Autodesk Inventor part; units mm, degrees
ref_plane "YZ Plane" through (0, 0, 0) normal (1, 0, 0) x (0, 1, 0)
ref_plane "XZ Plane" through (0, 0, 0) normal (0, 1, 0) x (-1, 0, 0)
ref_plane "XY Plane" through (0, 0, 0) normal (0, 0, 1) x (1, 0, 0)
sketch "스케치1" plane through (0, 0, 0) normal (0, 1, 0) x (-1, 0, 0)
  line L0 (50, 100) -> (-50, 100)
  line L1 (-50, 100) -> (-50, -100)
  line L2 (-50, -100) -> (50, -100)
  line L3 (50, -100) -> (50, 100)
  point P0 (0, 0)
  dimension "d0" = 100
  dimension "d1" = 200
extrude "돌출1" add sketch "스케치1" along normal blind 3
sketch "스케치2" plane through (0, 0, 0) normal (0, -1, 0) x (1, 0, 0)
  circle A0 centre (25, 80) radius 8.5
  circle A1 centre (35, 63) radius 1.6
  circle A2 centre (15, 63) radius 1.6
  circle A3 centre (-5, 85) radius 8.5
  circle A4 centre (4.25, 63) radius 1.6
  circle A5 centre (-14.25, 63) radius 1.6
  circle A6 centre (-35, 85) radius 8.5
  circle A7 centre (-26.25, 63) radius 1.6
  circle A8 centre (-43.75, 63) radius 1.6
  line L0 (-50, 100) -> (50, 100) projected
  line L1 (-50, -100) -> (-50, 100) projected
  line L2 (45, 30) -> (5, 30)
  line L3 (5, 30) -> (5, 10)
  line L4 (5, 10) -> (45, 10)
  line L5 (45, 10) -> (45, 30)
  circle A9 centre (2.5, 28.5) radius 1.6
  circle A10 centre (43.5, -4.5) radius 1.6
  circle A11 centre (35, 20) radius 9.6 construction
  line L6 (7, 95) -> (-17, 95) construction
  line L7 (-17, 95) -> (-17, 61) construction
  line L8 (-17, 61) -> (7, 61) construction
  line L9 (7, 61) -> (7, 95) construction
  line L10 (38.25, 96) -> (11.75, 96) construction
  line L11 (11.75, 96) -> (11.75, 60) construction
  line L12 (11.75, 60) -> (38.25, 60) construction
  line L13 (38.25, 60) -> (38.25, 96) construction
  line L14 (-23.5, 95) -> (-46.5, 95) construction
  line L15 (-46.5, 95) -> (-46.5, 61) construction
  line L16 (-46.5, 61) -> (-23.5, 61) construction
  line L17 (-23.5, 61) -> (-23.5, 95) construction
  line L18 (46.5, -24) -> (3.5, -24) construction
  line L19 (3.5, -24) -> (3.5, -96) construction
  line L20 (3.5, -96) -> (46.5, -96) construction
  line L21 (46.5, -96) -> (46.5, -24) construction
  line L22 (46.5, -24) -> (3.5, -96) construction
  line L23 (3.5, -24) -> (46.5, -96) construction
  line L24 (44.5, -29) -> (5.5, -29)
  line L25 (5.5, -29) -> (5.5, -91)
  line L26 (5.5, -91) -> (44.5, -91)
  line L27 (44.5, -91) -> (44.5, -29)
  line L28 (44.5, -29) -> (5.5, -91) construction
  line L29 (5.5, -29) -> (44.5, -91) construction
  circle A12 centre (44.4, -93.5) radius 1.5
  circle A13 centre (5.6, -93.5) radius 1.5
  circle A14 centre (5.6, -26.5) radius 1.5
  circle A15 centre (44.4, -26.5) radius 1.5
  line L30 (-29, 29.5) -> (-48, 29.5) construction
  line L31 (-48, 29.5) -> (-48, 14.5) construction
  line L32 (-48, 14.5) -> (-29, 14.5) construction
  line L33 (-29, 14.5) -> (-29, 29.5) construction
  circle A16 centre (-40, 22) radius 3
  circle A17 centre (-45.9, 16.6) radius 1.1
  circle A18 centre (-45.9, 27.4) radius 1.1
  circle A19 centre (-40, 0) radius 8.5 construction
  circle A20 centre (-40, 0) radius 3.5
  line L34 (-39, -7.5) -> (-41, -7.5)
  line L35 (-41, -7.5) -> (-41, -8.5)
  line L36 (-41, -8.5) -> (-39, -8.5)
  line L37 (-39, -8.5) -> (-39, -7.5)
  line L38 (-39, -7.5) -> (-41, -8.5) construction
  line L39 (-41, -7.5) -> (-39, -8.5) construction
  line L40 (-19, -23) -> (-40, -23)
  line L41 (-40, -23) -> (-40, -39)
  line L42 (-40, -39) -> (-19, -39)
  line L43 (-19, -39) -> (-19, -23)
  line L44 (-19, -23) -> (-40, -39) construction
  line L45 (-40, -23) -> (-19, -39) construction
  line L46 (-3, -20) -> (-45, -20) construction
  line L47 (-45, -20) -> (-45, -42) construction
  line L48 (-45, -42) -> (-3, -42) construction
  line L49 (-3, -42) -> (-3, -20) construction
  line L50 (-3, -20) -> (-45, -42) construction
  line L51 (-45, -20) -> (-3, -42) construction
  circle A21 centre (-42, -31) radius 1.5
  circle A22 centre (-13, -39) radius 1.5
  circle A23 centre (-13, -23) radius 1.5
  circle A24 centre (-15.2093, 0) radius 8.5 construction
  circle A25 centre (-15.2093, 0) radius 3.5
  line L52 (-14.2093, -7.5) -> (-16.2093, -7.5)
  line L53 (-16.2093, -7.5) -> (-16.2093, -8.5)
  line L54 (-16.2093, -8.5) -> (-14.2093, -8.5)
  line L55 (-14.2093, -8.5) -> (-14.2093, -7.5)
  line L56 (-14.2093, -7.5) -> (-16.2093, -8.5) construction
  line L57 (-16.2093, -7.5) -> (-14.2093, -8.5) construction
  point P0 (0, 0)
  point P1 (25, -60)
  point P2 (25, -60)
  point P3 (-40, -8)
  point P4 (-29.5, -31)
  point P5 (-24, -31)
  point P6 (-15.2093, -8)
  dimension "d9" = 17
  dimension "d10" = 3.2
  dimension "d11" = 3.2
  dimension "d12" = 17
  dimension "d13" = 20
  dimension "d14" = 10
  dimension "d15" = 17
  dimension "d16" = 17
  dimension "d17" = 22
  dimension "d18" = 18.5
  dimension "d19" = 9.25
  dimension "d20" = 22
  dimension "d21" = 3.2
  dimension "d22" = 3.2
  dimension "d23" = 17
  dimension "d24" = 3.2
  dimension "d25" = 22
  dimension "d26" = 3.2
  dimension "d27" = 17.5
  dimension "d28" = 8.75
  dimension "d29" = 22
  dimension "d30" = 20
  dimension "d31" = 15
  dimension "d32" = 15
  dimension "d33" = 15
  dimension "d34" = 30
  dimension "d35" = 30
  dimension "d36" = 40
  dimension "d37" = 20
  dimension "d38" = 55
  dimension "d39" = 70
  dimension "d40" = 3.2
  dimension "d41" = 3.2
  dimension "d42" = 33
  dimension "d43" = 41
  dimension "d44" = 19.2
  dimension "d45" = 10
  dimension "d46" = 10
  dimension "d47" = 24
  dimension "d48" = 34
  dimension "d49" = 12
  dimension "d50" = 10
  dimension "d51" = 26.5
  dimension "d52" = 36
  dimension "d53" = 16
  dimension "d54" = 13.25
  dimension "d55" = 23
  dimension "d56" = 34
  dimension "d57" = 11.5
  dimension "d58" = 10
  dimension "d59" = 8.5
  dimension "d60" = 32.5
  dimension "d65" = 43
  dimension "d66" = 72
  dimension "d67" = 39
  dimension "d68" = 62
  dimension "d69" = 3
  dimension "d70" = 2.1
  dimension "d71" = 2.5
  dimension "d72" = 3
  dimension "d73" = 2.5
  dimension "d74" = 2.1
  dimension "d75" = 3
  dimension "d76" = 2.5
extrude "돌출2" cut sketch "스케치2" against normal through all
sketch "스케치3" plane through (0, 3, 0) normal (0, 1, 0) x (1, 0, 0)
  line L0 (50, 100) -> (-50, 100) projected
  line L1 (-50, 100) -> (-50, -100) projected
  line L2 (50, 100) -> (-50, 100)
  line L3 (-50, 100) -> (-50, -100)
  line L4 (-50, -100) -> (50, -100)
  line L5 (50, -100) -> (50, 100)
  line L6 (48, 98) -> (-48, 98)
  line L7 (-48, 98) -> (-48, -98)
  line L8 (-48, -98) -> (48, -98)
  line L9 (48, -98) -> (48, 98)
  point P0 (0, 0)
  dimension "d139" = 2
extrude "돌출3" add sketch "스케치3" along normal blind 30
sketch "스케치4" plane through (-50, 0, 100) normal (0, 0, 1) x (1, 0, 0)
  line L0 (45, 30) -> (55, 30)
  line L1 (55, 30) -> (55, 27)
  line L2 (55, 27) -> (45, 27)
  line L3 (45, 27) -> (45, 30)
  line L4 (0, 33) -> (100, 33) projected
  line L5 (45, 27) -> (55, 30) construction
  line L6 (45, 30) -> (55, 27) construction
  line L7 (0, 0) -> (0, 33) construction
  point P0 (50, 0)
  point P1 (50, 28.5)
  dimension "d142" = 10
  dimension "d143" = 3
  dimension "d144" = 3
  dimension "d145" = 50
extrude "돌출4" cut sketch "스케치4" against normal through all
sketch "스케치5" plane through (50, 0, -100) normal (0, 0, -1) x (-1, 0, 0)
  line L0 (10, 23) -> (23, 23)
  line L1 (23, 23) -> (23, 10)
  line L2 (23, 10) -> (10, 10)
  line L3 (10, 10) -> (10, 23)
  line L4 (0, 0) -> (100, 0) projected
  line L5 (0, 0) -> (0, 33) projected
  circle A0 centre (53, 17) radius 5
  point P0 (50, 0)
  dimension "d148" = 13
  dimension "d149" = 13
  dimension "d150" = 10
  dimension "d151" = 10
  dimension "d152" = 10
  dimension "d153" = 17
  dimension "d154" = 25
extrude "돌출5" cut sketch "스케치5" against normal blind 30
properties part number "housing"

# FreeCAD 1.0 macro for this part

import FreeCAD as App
import Part
import Sketcher

doc = App.newDocument("Part")
params = doc.addObject("Spreadsheet::Sheet", "Params")
for row, (alias, value) in enumerate([
    ("sketch1_width", "100 mm"),
    ("sketch1_height", "200 mm"),
    ("pad1_length", "3 mm"),
    ("sketch2_diameter", "17 mm"),
    ("sketch2_diameter2", "3 mm"),
    ("sketch2_diameter3", "6 mm"),
    ("sketch2_diameter4", "3.2 mm"),
    ("sketch2_width", "40 mm"),
    ("sketch3_width", "100 mm"),
    ("sketch3_height", "200 mm"),
    ("pad2_length", "30 mm"),
    ("sketch4_width", "10 mm"),
    ("sketch4_height", "3 mm"),
    ("sketch5_diameter", "10 mm"),
    ("sketch5_width", "13 mm"),
    ("pocket3_length", "30 mm"),
], start=1):
    params.set(f"A{row}", alias)
    params.set(f"B{row}", "=" + value)
    params.setAlias(f"B{row}", alias)

body = doc.addObject("PartDesign::Body", "Body")

# Sketch on XZ plane
sketch1 = body.newObject("Sketcher::SketchObject", "Sketch")
sketch1.AttachmentSupport = (doc.getObject("XZ_Plane"), [""])
sketch1.MapMode = "FlatFace"
sketch1.addGeometry([
    Part.LineSegment(App.Vector(-50, -100, 0), App.Vector(-50, 100, 0)),
    Part.LineSegment(App.Vector(-50, 100, 0), App.Vector(50, 100, 0)),
    Part.LineSegment(App.Vector(50, 100, 0), App.Vector(50, -100, 0)),
    Part.LineSegment(App.Vector(50, -100, 0), App.Vector(-50, -100, 0)),
], False)
sketch1.addConstraint([
    Sketcher.Constraint("Coincident", 0, 2, 1, 1),
    Sketcher.Constraint("Coincident", 1, 2, 2, 1),
    Sketcher.Constraint("Coincident", 2, 2, 3, 1),
    Sketcher.Constraint("Coincident", 3, 2, 0, 1),
    Sketcher.Constraint("Vertical", 0),
    Sketcher.Constraint("Horizontal", 1),
    Sketcher.Constraint("Vertical", 2),
    Sketcher.Constraint("Horizontal", 3),
    Sketcher.Constraint("Symmetric", 0, 2, 2, 2, -1, 1),
    Sketcher.Constraint("DistanceX", 1, 1, 1, 2, 100.0),
    Sketcher.Constraint("DistanceY", 0, 1, 0, 2, 200.0),
])
sketch1.setExpression("Constraints[9]", "Params.sketch1_width")
sketch1.setExpression("Constraints[10]", "Params.sketch1_height")
pad1 = body.newObject("PartDesign::Pad", "Pad")
pad1.Profile = sketch1
pad1.setExpression("Length", "Params.pad1_length")
pad1.Reversed = True

# Sketch on XZ plane
sketch2 = body.newObject("Sketcher::SketchObject", "Sketch001")
sketch2.AttachmentSupport = (doc.getObject("XZ_Plane"), [""])
sketch2.MapMode = "FlatFace"
sketch2.addGeometry([
    Part.Circle(App.Vector(25, 80, 0), App.Vector(0, 0, 1), 8.5),  # 0
    Part.Circle(App.Vector(35, 63, 0), App.Vector(0, 0, 1), 1.6),  # 1
    Part.Circle(App.Vector(15, 63, 0), App.Vector(0, 0, 1), 1.6),  # 2
    Part.Circle(App.Vector(-5, 85, 0), App.Vector(0, 0, 1), 8.5),  # 3
    Part.Circle(App.Vector(4.2, 63, 0), App.Vector(0, 0, 1), 1.6),  # 4
    Part.Circle(App.Vector(-14.2, 63, 0), App.Vector(0, 0, 1), 1.6),  # 5
    Part.Circle(App.Vector(-35, 85, 0), App.Vector(0, 0, 1), 8.5),  # 6
    Part.Circle(App.Vector(-26.2, 63, 0), App.Vector(0, 0, 1), 1.6),  # 7
    Part.Circle(App.Vector(-43.8, 63, 0), App.Vector(0, 0, 1), 1.6),  # 8
    Part.LineSegment(App.Vector(45, 10, 0), App.Vector(45, 30, 0)),  # 9
    Part.LineSegment(App.Vector(45, 30, 0), App.Vector(5, 30, 0)),  # 10
    Part.LineSegment(App.Vector(5, 30, 0), App.Vector(5, 10, 0)),  # 11
    Part.LineSegment(App.Vector(5, 10, 0), App.Vector(45, 10, 0)),  # 12
    Part.Circle(App.Vector(2.5, 28.5, 0), App.Vector(0, 0, 1), 1.6),  # 13
    Part.Circle(App.Vector(43.5, -4.5, 0), App.Vector(0, 0, 1), 1.6),  # 14
    Part.LineSegment(App.Vector(44.5, -91, 0), App.Vector(44.5, -29, 0)),  # 15
    Part.LineSegment(App.Vector(44.5, -29, 0), App.Vector(5.5, -29, 0)),  # 16
    Part.LineSegment(App.Vector(5.5, -29, 0), App.Vector(5.5, -91, 0)),  # 17
    Part.LineSegment(App.Vector(5.5, -91, 0), App.Vector(44.5, -91, 0)),  # 18
    Part.Circle(App.Vector(44.4, -93.5, 0), App.Vector(0, 0, 1), 1.5),  # 19
    Part.Circle(App.Vector(5.6, -93.5, 0), App.Vector(0, 0, 1), 1.5),  # 20
    Part.Circle(App.Vector(5.6, -26.5, 0), App.Vector(0, 0, 1), 1.5),  # 21
    Part.Circle(App.Vector(44.4, -26.5, 0), App.Vector(0, 0, 1), 1.5),  # 22
    Part.Circle(App.Vector(-40, 22, 0), App.Vector(0, 0, 1), 3),  # 23
    Part.Circle(App.Vector(-45.9, 16.6, 0), App.Vector(0, 0, 1), 1.1),  # 24
    Part.Circle(App.Vector(-45.9, 27.4, 0), App.Vector(0, 0, 1), 1.1),  # 25
    Part.Circle(App.Vector(-40, 0, 0), App.Vector(0, 0, 1), 3.5),  # 26
    Part.LineSegment(App.Vector(-39, -8.5, 0), App.Vector(-39, -7.5, 0)),  # 27
    Part.LineSegment(App.Vector(-39, -7.5, 0), App.Vector(-41, -7.5, 0)),  # 28
    Part.LineSegment(App.Vector(-41, -7.5, 0), App.Vector(-41, -8.5, 0)),  # 29
    Part.LineSegment(App.Vector(-41, -8.5, 0), App.Vector(-39, -8.5, 0)),  # 30
    Part.LineSegment(App.Vector(-19, -39, 0), App.Vector(-19, -23, 0)),  # 31
    Part.LineSegment(App.Vector(-19, -23, 0), App.Vector(-40, -23, 0)),  # 32
    Part.LineSegment(App.Vector(-40, -23, 0), App.Vector(-40, -39, 0)),  # 33
    Part.LineSegment(App.Vector(-40, -39, 0), App.Vector(-19, -39, 0)),  # 34
    Part.Circle(App.Vector(-42, -31, 0), App.Vector(0, 0, 1), 1.5),  # 35
    Part.Circle(App.Vector(-13, -39, 0), App.Vector(0, 0, 1), 1.5),  # 36
    Part.Circle(App.Vector(-13, -23, 0), App.Vector(0, 0, 1), 1.5),  # 37
    Part.Circle(App.Vector(-15.2, 0, 0), App.Vector(0, 0, 1), 3.5),  # 38
    Part.LineSegment(App.Vector(-14.2, -8.5, 0), App.Vector(-14.2, -7.5, 0)),  # 39
    Part.LineSegment(App.Vector(-14.2, -7.5, 0), App.Vector(-16.2, -7.5, 0)),  # 40
    Part.LineSegment(App.Vector(-16.2, -7.5, 0), App.Vector(-16.2, -8.5, 0)),  # 41
    Part.LineSegment(App.Vector(-16.2, -8.5, 0), App.Vector(-14.2, -8.5, 0)),  # 42
], False)
sketch2.addConstraint([
    Sketcher.Constraint("Coincident", 9, 2, 10, 1),
    Sketcher.Constraint("Coincident", 10, 2, 11, 1),
    Sketcher.Constraint("Coincident", 11, 2, 12, 1),
    Sketcher.Constraint("Coincident", 12, 2, 9, 1),
    Sketcher.Constraint("Coincident", 15, 2, 16, 1),
    Sketcher.Constraint("Coincident", 16, 2, 17, 1),
    Sketcher.Constraint("Coincident", 17, 2, 18, 1),
    Sketcher.Constraint("Coincident", 18, 2, 15, 1),
    Sketcher.Constraint("Coincident", 27, 2, 28, 1),
    Sketcher.Constraint("Coincident", 28, 2, 29, 1),
    Sketcher.Constraint("Coincident", 29, 2, 30, 1),
    Sketcher.Constraint("Coincident", 30, 2, 27, 1),
    Sketcher.Constraint("Coincident", 31, 2, 32, 1),
    Sketcher.Constraint("Coincident", 32, 2, 33, 1),
    Sketcher.Constraint("Coincident", 33, 2, 34, 1),
    Sketcher.Constraint("Coincident", 34, 2, 31, 1),
    Sketcher.Constraint("Coincident", 39, 2, 40, 1),
    Sketcher.Constraint("Coincident", 40, 2, 41, 1),
    Sketcher.Constraint("Coincident", 41, 2, 42, 1),
    Sketcher.Constraint("Coincident", 42, 2, 39, 1),
    Sketcher.Constraint("Vertical", 9),
    Sketcher.Constraint("Horizontal", 10),
    Sketcher.Constraint("Vertical", 11),
    Sketcher.Constraint("Horizontal", 12),
    Sketcher.Constraint("Vertical", 15),
    Sketcher.Constraint("Horizontal", 16),
    Sketcher.Constraint("Vertical", 17),
    Sketcher.Constraint("Horizontal", 18),
    Sketcher.Constraint("Vertical", 27),
    Sketcher.Constraint("Horizontal", 28),
    Sketcher.Constraint("Vertical", 29),
    Sketcher.Constraint("Horizontal", 30),
    Sketcher.Constraint("Vertical", 31),
    Sketcher.Constraint("Horizontal", 32),
    Sketcher.Constraint("Vertical", 33),
    Sketcher.Constraint("Horizontal", 34),
    Sketcher.Constraint("Vertical", 39),
    Sketcher.Constraint("Horizontal", 40),
    Sketcher.Constraint("Vertical", 41),
    Sketcher.Constraint("Horizontal", 42),
    Sketcher.Constraint("Equal", 1, 2),
    Sketcher.Constraint("Equal", 0, 3),
    Sketcher.Constraint("Equal", 2, 4),
    Sketcher.Constraint("Equal", 4, 5),
    Sketcher.Constraint("Equal", 3, 6),
    Sketcher.Constraint("Equal", 5, 7),
    Sketcher.Constraint("Equal", 7, 8),
    Sketcher.Constraint("Equal", 8, 13),
    Sketcher.Constraint("Equal", 13, 14),
    Sketcher.Constraint("Equal", 19, 20),
    Sketcher.Constraint("Equal", 20, 21),
    Sketcher.Constraint("Equal", 21, 22),
    Sketcher.Constraint("Equal", 24, 25),
    Sketcher.Constraint("Equal", 22, 35),
    Sketcher.Constraint("Equal", 35, 36),
    Sketcher.Constraint("Equal", 36, 37),
    Sketcher.Constraint("Equal", 26, 38),
    Sketcher.Constraint("PointOnObject", 26, 3, -1),
    Sketcher.Constraint("PointOnObject", 38, 3, -1),
    Sketcher.Constraint("Horizontal", 1, 3, 2, 3),
    Sketcher.Constraint("Horizontal", 2, 3, 4, 3),
    Sketcher.Constraint("Horizontal", 4, 3, 5, 3),
    Sketcher.Constraint("Horizontal", 3, 3, 6, 3),
    Sketcher.Constraint("Horizontal", 5, 3, 7, 3),
    Sketcher.Constraint("Horizontal", 7, 3, 8, 3),
    Sketcher.Constraint("Horizontal", 19, 3, 20, 3),
    Sketcher.Constraint("Horizontal", 21, 3, 22, 3),
    Sketcher.Constraint("Horizontal", 37, 3, 31, 2),
    Sketcher.Constraint("Horizontal", 36, 3, 33, 2),
    Sketcher.Constraint("Horizontal", 28, 2, 39, 2),
    Sketcher.Constraint("Horizontal", 30, 2, 41, 2),
    Sketcher.Constraint("Vertical", 20, 3, 21, 3),
    Sketcher.Constraint("Vertical", 19, 3, 22, 3),
    Sketcher.Constraint("Vertical", 24, 3, 25, 3),
    Sketcher.Constraint("Vertical", 23, 3, 26, 3),
    Sketcher.Constraint("Vertical", 36, 3, 37, 3),
    Sketcher.Constraint("Vertical", 26, 3, 32, 2),
    Sketcher.Constraint("Equal", 30, 40),
    Sketcher.Constraint("Diameter", 0, 17.0),
    Sketcher.Constraint("Diameter", 19, 3.0),
    Sketcher.Constraint("Diameter", 23, 6.0),
    Sketcher.Constraint("Diameter", 1, 3.2),
    Sketcher.Constraint("DistanceX", 10, 2, 10, 1, 40.0),
    Sketcher.Constraint("DistanceX", 16, 2, 16, 1, 39.0),
    Sketcher.Constraint("DistanceY", 9, 1, 9, 2, 20.0),
    Sketcher.Constraint("DistanceY", 15, 1, 15, 2, 62.0),
    Sketcher.Constraint("DistanceY", 31, 1, 31, 2, 16.0),
    Sketcher.Constraint("Diameter", 26, 7.0),
    Sketcher.Constraint("DistanceX", -1, 1, 2, 3, 15.0),
    Sketcher.Constraint("DistanceX", 23, 3, -1, 1, 40.0),
    Sketcher.Constraint("DistanceY", -1, 1, 23, 3, 22.0),
    Sketcher.Constraint("DistanceY", 36, 3, -1, 1, 39.0),
    Sketcher.Constraint("DistanceY", -1, 1, 9, 2, 30.0),
    Sketcher.Constraint("DistanceX", 27, 2, -1, 1, 39.0),
    Sketcher.Constraint("DistanceX", 28, 2, -1, 1, 41.0),
    Sketcher.Constraint("DistanceX", 0, 3, 1, 3, 10.0),
    Sketcher.Constraint("DistanceY", 1, 3, 0, 3, 17.0),
    Sketcher.Constraint("DistanceX", 2, 3, 0, 3, 10.0),
    Sketcher.Constraint("DistanceX", 3, 3, 2, 3, 20.0),
    Sketcher.Constraint("DistanceY", 2, 3, 3, 3, 22.0),
    Sketcher.Constraint("DistanceX", 6, 3, 3, 3, 30.0),
    Sketcher.Constraint("DistanceX", 7, 3, 5, 3, 12.0),
    Sketcher.Constraint("DistanceX", 13, 3, 14, 3, 41.0),
    Sketcher.Constraint("DistanceY", 14, 3, 13, 3, 33.0),
    Sketcher.Constraint("DistanceY", 21, 3, 14, 3, 22.0),
    Sketcher.Constraint("DistanceY", 23, 3, 8, 3, 41.0),
    Sketcher.Constraint("DistanceX", 1, 3, 9, 2, 10.0),
    Sketcher.Constraint("DistanceY", 15, 2, 12, 2, 39.0),
    Sketcher.Constraint("DistanceX", 35, 3, 27, 2, 3.0),
    Sketcher.Constraint("DistanceX", 35, 3, 31, 2, 23.0),
    Sketcher.Constraint("Diameter", 24, 2.2),
    Sketcher.Constraint("DistanceX", -1, 1, 13, 3, 2.5),
    Sketcher.Constraint("DistanceY", 21, 3, -1, 1, 26.5),
    Sketcher.Constraint("DistanceY", 29, 2, -1, 1, 8.5),
    Sketcher.Constraint("DistanceX", 5, 3, 4, 3, 18.5),
    Sketcher.Constraint("DistanceX", 8, 3, 7, 3, 17.5),
    Sketcher.Constraint("DistanceX", 37, 3, 16, 2, 18.5),
    Sketcher.Constraint("DistanceY", 20, 3, 17, 2, 2.5),
    Sketcher.Constraint("DistanceY", 27, 1, 27, 2, 1.0),
    Sketcher.Constraint("DistanceX", 3, 3, 4, 3, 9.25),
    Sketcher.Constraint("DistanceY", 35, 3, -1, 1, 31.0),
    Sketcher.Constraint("DistanceX", 36, 3, -1, 1, 13.0),
    Sketcher.Constraint("DistanceX", 38, 3, 39, 2, 1.0),
    Sketcher.Constraint("DistanceX", -1, 1, 19, 3, 44.4),
    Sketcher.Constraint("DistanceX", -1, 1, 20, 3, 5.6),
    Sketcher.Constraint("DistanceX", 24, 3, -1, 1, 45.9),
    Sketcher.Constraint("DistanceY", -1, 1, 24, 3, 16.6),
    Sketcher.Constraint("DistanceY", -1, 1, 25, 3, 27.4),
    Sketcher.Constraint("DistanceX", 38, 3, -1, 1, 15.2093),
])
sketch2.setExpression("Constraints[78]", "Params.sketch2_diameter")
sketch2.setExpression("Constraints[79]", "Params.sketch2_diameter2")
sketch2.setExpression("Constraints[80]", "Params.sketch2_diameter3")
sketch2.setExpression("Constraints[81]", "Params.sketch2_diameter4")
sketch2.setExpression("Constraints[82]", "Params.sketch2_width")
pocket1 = body.newObject("PartDesign::Pocket", "Pocket")
pocket1.Profile = sketch2
pocket1.Type = "ThroughAll"

# Sketch on XZ plane
sketch3 = body.newObject("Sketcher::SketchObject", "Sketch002")
sketch3.AttachmentSupport = (doc.getObject("XZ_Plane"), [""])
sketch3.MapMode = "FlatFace"
sketch3.AttachmentOffset = App.Placement(App.Vector(0, 0, -3), App.Rotation())
sketch3.addGeometry([
    Part.LineSegment(App.Vector(50, 100, 0), App.Vector(50, -100, 0)),  # 0
    Part.LineSegment(App.Vector(50, -100, 0), App.Vector(-50, -100, 0)),  # 1
    Part.LineSegment(App.Vector(-50, -100, 0), App.Vector(-50, 100, 0)),  # 2
    Part.LineSegment(App.Vector(-50, 100, 0), App.Vector(50, 100, 0)),  # 3
    Part.LineSegment(App.Vector(-48, -98, 0), App.Vector(48, -98, 0)),  # 4
    Part.LineSegment(App.Vector(48, -98, 0), App.Vector(48, 98, 0)),  # 5
    Part.LineSegment(App.Vector(48, 98, 0), App.Vector(-48, 98, 0)),  # 6
    Part.LineSegment(App.Vector(-48, 98, 0), App.Vector(-48, -98, 0)),  # 7
], False)
sketch3.addConstraint([
    Sketcher.Constraint("Coincident", 0, 2, 1, 1),
    Sketcher.Constraint("Coincident", 1, 2, 2, 1),
    Sketcher.Constraint("Coincident", 2, 2, 3, 1),
    Sketcher.Constraint("Coincident", 3, 2, 0, 1),
    Sketcher.Constraint("Coincident", 4, 2, 5, 1),
    Sketcher.Constraint("Coincident", 5, 2, 6, 1),
    Sketcher.Constraint("Coincident", 6, 2, 7, 1),
    Sketcher.Constraint("Coincident", 7, 2, 4, 1),
    Sketcher.Constraint("Vertical", 0),
    Sketcher.Constraint("Horizontal", 1),
    Sketcher.Constraint("Vertical", 2),
    Sketcher.Constraint("Horizontal", 3),
    Sketcher.Constraint("Horizontal", 4),
    Sketcher.Constraint("Vertical", 5),
    Sketcher.Constraint("Horizontal", 6),
    Sketcher.Constraint("Vertical", 7),
    Sketcher.Constraint("Symmetric", 0, 2, 2, 2, -1, 1),
    Sketcher.Constraint("Symmetric", 4, 2, 6, 2, -1, 1),
    Sketcher.Constraint("DistanceX", 4, 2, 0, 2, 2.0),
    Sketcher.Constraint("DistanceY", 0, 2, 4, 2, 2.0),
    Sketcher.Constraint("DistanceX", 1, 2, 1, 1, 100.0),
    Sketcher.Constraint("DistanceY", 0, 2, 0, 1, 200.0),
])
sketch3.setExpression("Constraints[20]", "Params.sketch3_width")
sketch3.setExpression("Constraints[21]", "Params.sketch3_height")
pad2 = body.newObject("PartDesign::Pad", "Pad001")
pad2.Profile = sketch3
pad2.setExpression("Length", "Params.pad2_length")
pad2.Reversed = True

# Sketch on XY plane
sketch4 = body.newObject("Sketcher::SketchObject", "Sketch003")
sketch4.AttachmentSupport = (doc.getObject("XY_Plane"), [""])
sketch4.MapMode = "FlatFace"
sketch4.AttachmentOffset = App.Placement(App.Vector(0, 0, 100), App.Rotation())
sketch4.addGeometry([
    Part.LineSegment(App.Vector(5, 30, 0), App.Vector(-5, 30, 0)),
    Part.LineSegment(App.Vector(-5, 30, 0), App.Vector(-5, 27, 0)),
    Part.LineSegment(App.Vector(-5, 27, 0), App.Vector(5, 27, 0)),
    Part.LineSegment(App.Vector(5, 27, 0), App.Vector(5, 30, 0)),
], False)
sketch4.addConstraint([
    Sketcher.Constraint("Coincident", 0, 2, 1, 1),
    Sketcher.Constraint("Coincident", 1, 2, 2, 1),
    Sketcher.Constraint("Coincident", 2, 2, 3, 1),
    Sketcher.Constraint("Coincident", 3, 2, 0, 1),
    Sketcher.Constraint("Horizontal", 0),
    Sketcher.Constraint("Vertical", 1),
    Sketcher.Constraint("Horizontal", 2),
    Sketcher.Constraint("Vertical", 3),
    Sketcher.Constraint("DistanceX", 0, 2, 0, 1, 10.0),
    Sketcher.Constraint("DistanceY", 1, 2, 1, 1, 3.0),
    Sketcher.Constraint("DistanceX", 0, 2, -1, 1, 5.0),
    Sketcher.Constraint("DistanceY", -1, 1, 0, 2, 30.0),
])
sketch4.setExpression("Constraints[8]", "Params.sketch4_width")
sketch4.setExpression("Constraints[9]", "Params.sketch4_height")
pocket2 = body.newObject("PartDesign::Pocket", "Pocket001")
pocket2.Profile = sketch4
pocket2.Type = "ThroughAll"

# Sketch on XY plane
sketch5 = body.newObject("Sketcher::SketchObject", "Sketch004")
sketch5.AttachmentSupport = (doc.getObject("XY_Plane"), [""])
sketch5.MapMode = "FlatFace"
sketch5.AttachmentOffset = App.Placement(App.Vector(0, 0, -100), App.Rotation())
sketch5.addGeometry([
    Part.LineSegment(App.Vector(27, 23, 0), App.Vector(40, 23, 0)),  # 0
    Part.LineSegment(App.Vector(40, 23, 0), App.Vector(40, 10, 0)),  # 1
    Part.LineSegment(App.Vector(40, 10, 0), App.Vector(27, 10, 0)),  # 2
    Part.LineSegment(App.Vector(27, 10, 0), App.Vector(27, 23, 0)),  # 3
    Part.Circle(App.Vector(-3, 17, 0), App.Vector(0, 0, 1), 5),  # 4
], False)
sketch5.addConstraint([
    Sketcher.Constraint("Coincident", 0, 2, 1, 1),
    Sketcher.Constraint("Coincident", 1, 2, 2, 1),
    Sketcher.Constraint("Coincident", 2, 2, 3, 1),
    Sketcher.Constraint("Coincident", 3, 2, 0, 1),
    Sketcher.Constraint("Horizontal", 0),
    Sketcher.Constraint("Vertical", 1),
    Sketcher.Constraint("Horizontal", 2),
    Sketcher.Constraint("Vertical", 3),
    Sketcher.Constraint("Equal", 2, 1),
    Sketcher.Constraint("Diameter", 4, 10.0),
    Sketcher.Constraint("DistanceX", 0, 1, 0, 2, 13.0),
    Sketcher.Constraint("DistanceY", -1, 1, 4, 3, 17.0),
    Sketcher.Constraint("DistanceY", -1, 1, 1, 2, 10.0),
    Sketcher.Constraint("DistanceX", 4, 3, -1, 1, 3.0),
    Sketcher.Constraint("DistanceX", -1, 1, 0, 2, 40.0),
])
sketch5.setExpression("Constraints[9]", "Params.sketch5_diameter")
sketch5.setExpression("Constraints[10]", "Params.sketch5_width")
pocket3 = body.newObject("PartDesign::Pocket", "Pocket002")
pocket3.Profile = sketch5
pocket3.setExpression("Length", "Params.pocket3_length")
pocket3.Reversed = True

doc.recompute()
